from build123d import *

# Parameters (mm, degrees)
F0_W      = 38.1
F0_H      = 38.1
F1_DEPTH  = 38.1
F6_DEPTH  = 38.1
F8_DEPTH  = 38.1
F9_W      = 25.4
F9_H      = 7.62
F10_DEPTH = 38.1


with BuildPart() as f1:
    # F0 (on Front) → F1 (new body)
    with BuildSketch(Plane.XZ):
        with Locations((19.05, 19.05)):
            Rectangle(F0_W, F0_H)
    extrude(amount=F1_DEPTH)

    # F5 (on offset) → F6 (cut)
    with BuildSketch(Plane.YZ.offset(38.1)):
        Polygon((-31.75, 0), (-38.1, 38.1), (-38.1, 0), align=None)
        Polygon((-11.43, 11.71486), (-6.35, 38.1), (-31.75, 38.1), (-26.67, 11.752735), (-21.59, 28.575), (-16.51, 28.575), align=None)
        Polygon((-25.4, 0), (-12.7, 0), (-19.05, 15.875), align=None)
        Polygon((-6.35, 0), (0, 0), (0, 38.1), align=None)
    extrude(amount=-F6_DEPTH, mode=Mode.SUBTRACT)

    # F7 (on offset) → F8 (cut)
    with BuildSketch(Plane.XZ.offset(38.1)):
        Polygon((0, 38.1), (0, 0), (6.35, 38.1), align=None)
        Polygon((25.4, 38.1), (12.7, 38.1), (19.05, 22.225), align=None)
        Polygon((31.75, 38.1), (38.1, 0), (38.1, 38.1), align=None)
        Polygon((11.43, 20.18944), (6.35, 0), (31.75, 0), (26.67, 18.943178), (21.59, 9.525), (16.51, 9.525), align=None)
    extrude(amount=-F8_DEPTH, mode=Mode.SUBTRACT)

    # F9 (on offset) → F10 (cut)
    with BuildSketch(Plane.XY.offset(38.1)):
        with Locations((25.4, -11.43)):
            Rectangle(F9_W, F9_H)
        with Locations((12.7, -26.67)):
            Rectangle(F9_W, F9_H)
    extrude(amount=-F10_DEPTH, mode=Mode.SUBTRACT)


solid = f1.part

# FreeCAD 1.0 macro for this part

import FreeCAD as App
import Part
import Sketcher
Q = App.Units.Quantity


def add_polygon(sketch, points):
    """Adds a closed chain of lines whose ends are joined by coincident constraints."""
    first, n = sketch.GeometryCount, len(points)
    for a, b in zip(points, points[1:] + points[:1]):
        sketch.addGeometry(Part.LineSegment(App.Vector(*a, 0), App.Vector(*b, 0)), False)
    for i in range(n):
        sketch.addConstraint(Sketcher.Constraint("Coincident", first + i, 2, first + (i + 1) % n, 1))

doc = App.newDocument("Part")
params = doc.addObject("Spreadsheet::Sheet", "Params")
for row, (alias, value) in enumerate([
    ("sketch1_width", "1.5 in"),
    ("pad1_length", "1.5 in"),
    ("sketch2_width", "1 in"),
    ("sketch2_width2", "0.2 in"),
    ("sketch2_width3", "0.5 in"),
    ("sketch2_height", "1.5 in"),
    ("pocket1_length", "1.5 in"),
    ("sketch3_width", "1 in"),
    ("sketch3_width2", "0.5 in"),
    ("sketch3_width3", "0.2 in"),
    ("sketch3_height", "1.5 in"),
    ("pocket2_length", "1.5 in"),
    ("sketch4_width", "1 in"),
    ("sketch4_height", "0.3 in"),
    ("pocket3_length", "1.5 in"),
], start=1):
    params.set(f"A{row}", alias)
    params.set(f"B{row}", "=" + value)
    params.setAlias(f"B{row}", alias)

body = doc.addObject("PartDesign::Body", "Body")

sketch1 = body.newObject("Sketcher::SketchObject", "Sketch")
sketch1.AttachmentSupport = (doc.getObject("XZ_Plane"), [""])
sketch1.MapMode = "FlatFace"
add_polygon(sketch1, [(0, 38), (0, 0), (38, 0), (38, 38)])
sketch1.addConstraint([
    Sketcher.Constraint("Vertical", 0),
    Sketcher.Constraint("Horizontal", 1),
    Sketcher.Constraint("Vertical", 2),
    Sketcher.Constraint("Horizontal", 3),
    Sketcher.Constraint("Coincident", 0, 2, -1, 1),
    Sketcher.Constraint("Equal", 3, 0),
    Sketcher.Constraint("DistanceX", 1, 1, 1, 2, Q("1.5 in")),
])
sketch1.setExpression("Constraints[10]", "Params.sketch1_width")
pad1 = body.newObject("PartDesign::Pad", "Pad")
pad1.Profile = sketch1
pad1.setExpression("Length", "Params.pad1_length")

sketch2 = body.newObject("Sketcher::SketchObject", "Sketch001")
sketch2.AttachmentSupport = (doc.getObject("YZ_Plane"), [""])
sketch2.MapMode = "FlatFace"
sketch2.AttachmentOffset = App.Placement(App.Vector(0, 0, 1.5 * 25.4), App.Rotation())
add_polygon(sketch2, [(-32, 0), (-38, 38), (-38, 0)])
add_polygon(sketch2, [(-11, 12), (-6, 38), (-32, 38), (-27, 12), (-22, 29), (-17, 29)])
add_polygon(sketch2, [(-25, 0), (-13, 0), (-19, 16)])
add_polygon(sketch2, [(-6, 0), (0, 0), (0, 38)])
sketch2.addConstraint([
    Sketcher.Constraint("Vertical", 1),
    Sketcher.Constraint("Horizontal", 2),
    Sketcher.Constraint("Horizontal", 4),
    Sketcher.Constraint("Horizontal", 7),
    Sketcher.Constraint("Horizontal", 9),
    Sketcher.Constraint("Horizontal", 12),
    Sketcher.Constraint("Vertical", 13),
    Sketcher.Constraint("Coincident", 12, 2, -1, 1),
    Sketcher.Constraint("PointOnObject", 1, 2, -1),
    Sketcher.Constraint("PointOnObject", 9, 2, -1),
    Sketcher.Constraint("Horizontal", 0, 2, 3, 2),
    Sketcher.Constraint("Horizontal", 4, 2, 13, 2),
    Sketcher.Constraint("Vertical", 2, 2, 4, 2),
    Sketcher.Constraint("Vertical", 3, 2, 14, 2),
    Sketcher.Constraint("Equal", 2, 12),
    Sketcher.Constraint("Equal", 10, 11),
    Sketcher.Constraint("DistanceX", 4, 2, 4, 1, Q("1 in")),
    Sketcher.Constraint("DistanceX", 7, 1, 7, 2, Q("0.2 in")),
    Sketcher.Constraint("DistanceX", 9, 1, 9, 2, Q("0.5 in")),
    Sketcher.Constraint("DistanceY", 1, 2, 1, 1, Q("1.5 in")),
    Sketcher.Constraint("DistanceX", 11, 2, -1, 1, Q("1 in")),
    Sketcher.Constraint("DistanceX", 1, 2, 9, 2, Q("1 in")),
    Sketcher.Constraint("DistanceX", 2, 2, 5, 2, Q("0.2 in")),
    Sketcher.Constraint("DistanceX", 4, 2, 6, 2, Q("0.4 in")),
    Sketcher.Constraint("DistanceX", 5, 2, 8, 2, Q("0.6 in")),
    Sketcher.Constraint("DistanceY", 10, 2, 6, 2, Q("0.5 in")),
    Sketcher.Constraint("DistanceY", -1, 1, 6, 2, Q("1.125 in")),
    Sketcher.Constraint("Distance", 5, Q("26.832532 mm")),
    Sketcher.Constraint("DistanceY", -1, 1, 8, 2, Q("11.71486 mm")),
])
sketch2.setExpression("Constraints[31]", "Params.sketch2_width")
sketch2.setExpression("Constraints[32]", "Params.sketch2_width2")
sketch2.setExpression("Constraints[33]", "Params.sketch2_width3")
sketch2.setExpression("Constraints[34]", "Params.sketch2_height")
pocket1 = body.newObject("PartDesign::Pocket", "Pocket")
pocket1.Profile = sketch2
pocket1.setExpression("Length", "Params.pocket1_length")

sketch3 = body.newObject("Sketcher::SketchObject", "Sketch002")
sketch3.AttachmentSupport = (doc.getObject("XZ_Plane"), [""])
sketch3.MapMode = "FlatFace"
sketch3.AttachmentOffset = App.Placement(App.Vector(0, 0, 1.5 * 25.4), App.Rotation())
add_polygon(sketch3, [(0, 38), (0, 0), (6, 38)])
add_polygon(sketch3, [(25, 38), (13, 38), (19, 22)])
add_polygon(sketch3, [(32, 38), (38, 0), (38, 38)])
add_polygon(sketch3, [(11, 20), (6, 0), (32, 0), (27, 19), (22, 10), (17, 10)])
sketch3.addConstraint([
    Sketcher.Constraint("Vertical", 0),
    Sketcher.Constraint("Horizontal", 2),
    Sketcher.Constraint("Horizontal", 3),
    Sketcher.Constraint("Vertical", 7),
    Sketcher.Constraint("Horizontal", 8),
    Sketcher.Constraint("Horizontal", 10),
    Sketcher.Constraint("Horizontal", 13),
    Sketcher.Constraint("Coincident", 0, 2, -1, 1),
    Sketcher.Constraint("PointOnObject", 6, 2, -1),
    Sketcher.Constraint("PointOnObject", 9, 2, -1),
    Sketcher.Constraint("Horizontal", 2, 2, 3, 2),
    Sketcher.Constraint("Horizontal", 5, 2, 7, 2),
    Sketcher.Constraint("Vertical", 1, 2, 9, 2),
    Sketcher.Constraint("Vertical", 8, 2, 10, 2),
    Sketcher.Constraint("Equal", 2, 8),
    Sketcher.Constraint("Equal", 4, 5),
    Sketcher.Constraint("DistanceX", 10, 1, 10, 2, Q("1 in")),
    Sketcher.Constraint("DistanceX", 3, 2, 3, 1, Q("0.5 in")),
    Sketcher.Constraint("DistanceX", 13, 2, 13, 1, Q("0.2 in")),
    Sketcher.Constraint("DistanceY", 0, 2, 0, 1, Q("1.5 in")),
    Sketcher.Constraint("DistanceX", -1, 1, 5, 2, Q("1 in")),
    Sketcher.Constraint("DistanceX", 3, 2, 6, 2, Q("1 in")),
    Sketcher.Constraint("DistanceX", 4, 2, 11, 2, Q("0.3 in")),
    Sketcher.Constraint("DistanceX", 12, 2, 11, 2, Q("0.2 in")),
    Sketcher.Constraint("DistanceY", 12, 2, 4, 2, Q("0.5 in")),
    Sketcher.Constraint("DistanceX", 14, 2, 4, 2, Q("0.3 in")),
    Sketcher.Constraint("DistanceY", -1, 1, 4, 2, Q("0.875 in")),
    Sketcher.Constraint("Distance", 9, Q("20.818739 mm")),
    Sketcher.Constraint("Distance", 11, Q("19.612506 mm")),
])
sketch3.setExpression("Constraints[31]", "Params.sketch3_width")
sketch3.setExpression("Constraints[32]", "Params.sketch3_width2")
sketch3.setExpression("Constraints[33]", "Params.sketch3_width3")
sketch3.setExpression("Constraints[34]", "Params.sketch3_height")
pocket2 = body.newObject("PartDesign::Pocket", "Pocket001")
pocket2.Profile = sketch3
pocket2.setExpression("Length", "Params.pocket2_length")

sketch4 = body.newObject("Sketcher::SketchObject", "Sketch003")
sketch4.AttachmentSupport = (doc.getObject("XY_Plane"), [""])
sketch4.MapMode = "FlatFace"
sketch4.AttachmentOffset = App.Placement(App.Vector(0, 0, 1.5 * 25.4), App.Rotation())
add_polygon(sketch4, [(13, -8), (13, -15), (38, -15), (38, -8)])
add_polygon(sketch4, [(0, -23), (0, -30), (25, -30), (25, -23)])
sketch4.addConstraint([
    Sketcher.Constraint("Vertical", 0),
    Sketcher.Constraint("Horizontal", 1),
    Sketcher.Constraint("Vertical", 2),
    Sketcher.Constraint("Horizontal", 3),
    Sketcher.Constraint("Vertical", 4),
    Sketcher.Constraint("Horizontal", 5),
    Sketcher.Constraint("Vertical", 6),
    Sketcher.Constraint("Horizontal", 7),
    Sketcher.Constraint("PointOnObject", 4, 2, -2),
    Sketcher.Constraint("Equal", 3, 5),
    Sketcher.Constraint("Equal", 2, 4),
    Sketcher.Constraint("DistanceX", 1, 1, 1, 2, Q("1 in")),
    Sketcher.Constraint("DistanceY", 0, 2, 0, 1, Q("0.3 in")),
    Sketcher.Constraint("DistanceX", -1, 1, 0, 2, Q("0.5 in")),
    Sketcher.Constraint("DistanceY", 0, 2, -1, 1, Q("0.6 in")),
    Sketcher.Constraint("DistanceY", 4, 2, -1, 1, Q("1.2 in")),
])
sketch4.setExpression("Constraints[19]", "Params.sketch4_width")
sketch4.setExpression("Constraints[20]", "Params.sketch4_height")
pocket3 = body.newObject("PartDesign::Pocket", "Pocket002")
pocket3.Profile = sketch4
pocket3.setExpression("Length", "Params.pocket3_length")

doc.recompute()
